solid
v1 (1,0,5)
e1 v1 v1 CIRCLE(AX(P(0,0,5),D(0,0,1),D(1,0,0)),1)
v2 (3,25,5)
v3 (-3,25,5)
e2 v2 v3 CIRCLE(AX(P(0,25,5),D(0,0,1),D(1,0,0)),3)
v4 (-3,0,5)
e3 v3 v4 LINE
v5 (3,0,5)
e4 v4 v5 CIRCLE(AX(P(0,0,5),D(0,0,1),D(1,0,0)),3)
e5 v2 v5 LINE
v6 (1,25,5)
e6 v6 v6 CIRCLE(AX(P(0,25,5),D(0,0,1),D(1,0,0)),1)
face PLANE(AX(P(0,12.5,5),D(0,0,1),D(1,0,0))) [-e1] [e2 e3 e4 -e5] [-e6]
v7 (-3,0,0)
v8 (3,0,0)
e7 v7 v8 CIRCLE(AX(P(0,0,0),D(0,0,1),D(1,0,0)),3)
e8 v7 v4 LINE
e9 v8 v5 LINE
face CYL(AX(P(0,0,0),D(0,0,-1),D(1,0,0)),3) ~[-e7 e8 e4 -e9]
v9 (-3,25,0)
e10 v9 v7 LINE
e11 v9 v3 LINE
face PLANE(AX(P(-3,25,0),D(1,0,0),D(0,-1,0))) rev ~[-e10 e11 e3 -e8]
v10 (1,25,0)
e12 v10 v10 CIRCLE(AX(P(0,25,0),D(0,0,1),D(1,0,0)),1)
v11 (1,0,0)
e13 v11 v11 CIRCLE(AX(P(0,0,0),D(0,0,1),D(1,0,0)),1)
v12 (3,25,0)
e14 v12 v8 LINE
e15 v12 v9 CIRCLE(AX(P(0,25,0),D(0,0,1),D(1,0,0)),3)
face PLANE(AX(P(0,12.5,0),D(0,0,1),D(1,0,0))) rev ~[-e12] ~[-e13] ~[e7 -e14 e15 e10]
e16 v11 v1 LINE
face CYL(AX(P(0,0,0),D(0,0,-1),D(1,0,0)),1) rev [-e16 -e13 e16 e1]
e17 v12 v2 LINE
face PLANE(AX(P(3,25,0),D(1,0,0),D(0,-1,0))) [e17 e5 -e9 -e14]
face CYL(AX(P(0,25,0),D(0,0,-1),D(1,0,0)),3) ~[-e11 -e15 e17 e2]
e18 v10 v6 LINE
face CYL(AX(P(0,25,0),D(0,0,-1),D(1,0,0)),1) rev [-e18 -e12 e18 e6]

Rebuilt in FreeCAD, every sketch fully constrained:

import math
import FreeCAD as App
import Part
import Sketcher

V = App.Vector
Q = App.Units.Quantity

doc = App.newDocument("Part")
params = doc.addObject("Spreadsheet::Sheet", "Params")
for row, (alias, value) in enumerate([
    ("sketch1_diameter", "2 mm"),
    ("sketch1_radius", "3 mm"),
    ("sketch1_height", "25 mm"),
    ("pad1_length", "5 mm"),
], start=1):
    params.set(f"A{row}", alias)
    params.set(f"B{row}", "=" + value)
    params.setAlias(f"B{row}", alias)

body = doc.addObject("PartDesign::Body", "Body")

# Sketch on XY plane
sketch1 = body.newObject("Sketcher::SketchObject", "Sketch")
sketch1.AttachmentSupport = (doc.getObject("XY_Plane"), [""])
sketch1.MapMode = "FlatFace"
sketch1.addGeometry(Part.ArcOfCircle(Part.Circle(V(0, 25, 0), V(0, 0, 1), 3), math.radians(0), math.radians(180)), False)
sketch1.addGeometry(Part.LineSegment(V(-3, 25, 0), V(-3, 0, 0)), False)
sketch1.addGeometry(Part.ArcOfCircle(Part.Circle(V(0, 0, 0), V(0, 0, 1), 3), math.radians(180), math.radians(360)), False)
sketch1.addGeometry(Part.LineSegment(V(3, 0, 0), V(3, 25, 0)), False)
sketch1.addGeometry(Part.Circle(V(0, 0, 0), V(0, 0, 1), 1), False)
sketch1.addGeometry(Part.Circle(V(0, 25, 0), V(0, 0, 1), 1), False)
sketch1.addConstraint(Sketcher.Constraint("Tangent", 0, 2, 1, 1))
sketch1.addConstraint(Sketcher.Constraint("Tangent", 1, 2, 2, 1))
sketch1.addConstraint(Sketcher.Constraint("Tangent", 2, 2, 3, 1))
sketch1.addConstraint(Sketcher.Constraint("Tangent", 3, 2, 0, 1))
sketch1.addConstraint(Sketcher.Constraint("Vertical", 1))
sketch1.addConstraint(Sketcher.Constraint("Vertical", 3))
sketch1.addConstraint(Sketcher.Constraint("Coincident", 2, 3, -1, 1))
sketch1.addConstraint(Sketcher.Constraint("Coincident", 4, 3, -1, 1))
sketch1.addConstraint(Sketcher.Constraint("Coincident", 5, 3, 0, 3))
sketch1.addConstraint(Sketcher.Constraint("Equal", 4, 5))
sketch1.addConstraint(Sketcher.Constraint("Diameter", 4, Q("2 mm")))
sketch1.addConstraint(Sketcher.Constraint("Radius", 0, Q("3 mm")))
sketch1.addConstraint(Sketcher.Constraint("DistanceY", 1, 2, 1, 1, Q("25 mm")))
sketch1.setExpression("Constraints[10]", "Params.sketch1_diameter")
sketch1.setExpression("Constraints[11]", "Params.sketch1_radius")
sketch1.setExpression("Constraints[12]", "Params.sketch1_height")
pad1 = body.newObject("PartDesign::Pad", "Pad")
pad1.Profile = sketch1
pad1.setExpression("Length", "Params.pad1_length")

doc.recompute()
